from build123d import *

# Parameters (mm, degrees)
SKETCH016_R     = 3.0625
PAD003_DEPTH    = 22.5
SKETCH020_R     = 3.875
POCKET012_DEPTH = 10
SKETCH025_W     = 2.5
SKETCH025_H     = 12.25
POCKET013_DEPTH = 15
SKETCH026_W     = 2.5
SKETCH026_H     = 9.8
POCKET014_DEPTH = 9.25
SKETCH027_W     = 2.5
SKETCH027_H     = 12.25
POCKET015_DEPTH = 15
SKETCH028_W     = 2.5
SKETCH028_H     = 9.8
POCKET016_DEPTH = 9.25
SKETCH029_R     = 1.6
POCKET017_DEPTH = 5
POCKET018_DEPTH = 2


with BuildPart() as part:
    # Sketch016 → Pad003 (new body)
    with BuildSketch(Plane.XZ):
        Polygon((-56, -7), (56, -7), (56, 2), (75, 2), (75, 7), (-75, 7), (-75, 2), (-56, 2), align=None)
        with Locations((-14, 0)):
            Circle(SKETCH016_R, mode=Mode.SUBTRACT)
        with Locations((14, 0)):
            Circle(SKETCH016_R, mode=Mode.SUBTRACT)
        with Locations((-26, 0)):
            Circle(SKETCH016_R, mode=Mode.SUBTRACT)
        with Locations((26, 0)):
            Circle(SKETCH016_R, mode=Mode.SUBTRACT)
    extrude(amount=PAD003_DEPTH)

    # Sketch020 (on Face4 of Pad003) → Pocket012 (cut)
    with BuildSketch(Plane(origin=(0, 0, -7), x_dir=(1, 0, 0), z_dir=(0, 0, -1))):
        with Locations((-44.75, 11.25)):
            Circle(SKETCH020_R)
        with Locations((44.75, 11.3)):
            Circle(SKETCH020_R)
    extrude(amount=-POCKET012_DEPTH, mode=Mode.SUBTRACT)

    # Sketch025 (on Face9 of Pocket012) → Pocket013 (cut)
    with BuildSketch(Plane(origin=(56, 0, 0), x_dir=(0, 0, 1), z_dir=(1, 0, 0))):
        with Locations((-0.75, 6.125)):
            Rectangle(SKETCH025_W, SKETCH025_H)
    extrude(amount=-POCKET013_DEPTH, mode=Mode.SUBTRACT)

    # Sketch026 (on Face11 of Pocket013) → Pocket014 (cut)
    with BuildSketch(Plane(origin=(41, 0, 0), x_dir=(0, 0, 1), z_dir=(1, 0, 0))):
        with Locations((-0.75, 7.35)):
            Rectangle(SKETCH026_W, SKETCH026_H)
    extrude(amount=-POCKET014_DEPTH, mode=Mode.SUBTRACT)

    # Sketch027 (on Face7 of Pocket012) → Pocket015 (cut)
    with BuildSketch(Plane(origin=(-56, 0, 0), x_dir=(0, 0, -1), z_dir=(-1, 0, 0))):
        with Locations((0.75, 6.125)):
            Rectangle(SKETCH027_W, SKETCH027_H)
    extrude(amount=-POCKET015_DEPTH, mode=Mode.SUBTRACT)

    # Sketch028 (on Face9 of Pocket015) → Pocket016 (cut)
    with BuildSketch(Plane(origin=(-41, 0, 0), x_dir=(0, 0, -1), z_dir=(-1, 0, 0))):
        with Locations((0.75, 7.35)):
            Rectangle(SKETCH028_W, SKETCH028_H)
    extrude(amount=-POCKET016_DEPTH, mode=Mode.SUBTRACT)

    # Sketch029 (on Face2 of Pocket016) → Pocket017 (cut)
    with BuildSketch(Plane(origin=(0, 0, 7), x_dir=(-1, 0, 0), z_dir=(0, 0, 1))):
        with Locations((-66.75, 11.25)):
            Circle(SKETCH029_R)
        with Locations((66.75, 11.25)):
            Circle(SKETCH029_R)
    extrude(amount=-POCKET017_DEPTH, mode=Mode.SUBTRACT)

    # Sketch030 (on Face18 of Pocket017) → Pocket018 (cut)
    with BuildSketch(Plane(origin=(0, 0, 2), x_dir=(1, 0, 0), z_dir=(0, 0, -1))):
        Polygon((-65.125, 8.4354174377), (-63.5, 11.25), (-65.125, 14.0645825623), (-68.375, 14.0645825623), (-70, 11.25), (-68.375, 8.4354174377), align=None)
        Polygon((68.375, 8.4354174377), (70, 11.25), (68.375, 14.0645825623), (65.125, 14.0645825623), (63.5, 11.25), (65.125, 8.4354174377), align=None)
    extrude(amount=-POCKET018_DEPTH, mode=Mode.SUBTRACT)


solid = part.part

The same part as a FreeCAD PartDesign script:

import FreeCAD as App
import Part
import Sketcher

V = App.Vector
Q = App.Units.Quantity

doc = App.newDocument("Part")
params = doc.addObject("Spreadsheet::Sheet", "Params")
for row, (alias, value) in enumerate([
    ("sketch1_width", "112 mm"),
    ("sketch1_width2", "19 mm"),
    ("sketch1_height", "9 mm"),
    ("sketch1_height2", "5 mm"),
    ("pad1_length", "22.5 mm"),
    ("sketch2_diameter", "7.75 mm"),
    ("pocket1_length", "10 mm"),
    ("sketch3_height", "2.5 mm"),
    ("sketch3_width", "12.25 mm"),
    ("pocket2_length", "15 mm"),
    ("sketch4_width", "9.8 mm"),
    ("sketch4_height", "2.5 mm"),
    ("pocket3_length", "9.25 mm"),
    ("sketch5_height", "2.5 mm"),
    ("sketch5_width", "12.25 mm"),
    ("pocket4_length", "15 mm"),
    ("sketch6_width", "9.8 mm"),
    ("sketch6_height", "2.5 mm"),
    ("pocket5_length", "9.25 mm"),
    ("sketch7_diameter", "3.2 mm"),
    ("pocket6_length", "5 mm"),
    ("sketch8_width", "3.25 mm"),
    ("pocket7_length", "2 mm"),
], start=1):
    params.set(f"A{row}", alias)
    params.set(f"B{row}", "=" + value)
    params.setAlias(f"B{row}", alias)

body = doc.addObject("PartDesign::Body", "Body")

# Sketch on XZ plane
sketch1 = body.newObject("Sketcher::SketchObject", "Sketch")
sketch1.AttachmentSupport = (doc.getObject("XZ_Plane"), [""])
sketch1.MapMode = "FlatFace"
sketch1.addGeometry([
    Part.LineSegment(V(-56, -7, 0), V(56, -7, 0)),  # 0
    Part.LineSegment(V(56, -7, 0), V(56, 2, 0)),  # 1
    Part.LineSegment(V(56, 2, 0), V(75, 2, 0)),  # 2
    Part.LineSegment(V(75, 2, 0), V(75, 7, 0)),  # 3
    Part.LineSegment(V(75, 7, 0), V(-75, 7, 0)),  # 4
    Part.LineSegment(V(-75, 7, 0), V(-75, 2, 0)),  # 5
    Part.LineSegment(V(-75, 2, 0), V(-56, 2, 0)),  # 6
    Part.LineSegment(V(-56, 2, 0), V(-56, -7, 0)),  # 7
    Part.Circle(V(-26, 0, 0), V(0, 0, 1), 3.1),  # 8
    Part.Circle(V(-14, 0, 0), V(0, 0, 1), 3.1),  # 9
    Part.Circle(V(14, 0, 0), V(0, 0, 1), 3.1),  # 10
    Part.Circle(V(26, 0, 0), V(0, 0, 1), 3.1),  # 11
], False)
sketch1.addConstraint([
    Sketcher.Constraint("Coincident", 0, 2, 1, 1),
    Sketcher.Constraint("Coincident", 1, 2, 2, 1),
    Sketcher.Constraint("Coincident", 2, 2, 3, 1),
    Sketcher.Constraint("Coincident", 3, 2, 4, 1),
    Sketcher.Constraint("Coincident", 4, 2, 5, 1),
    Sketcher.Constraint("Coincident", 5, 2, 6, 1),
    Sketcher.Constraint("Coincident", 6, 2, 7, 1),
    Sketcher.Constraint("Coincident", 7, 2, 0, 1),
    Sketcher.Constraint("Horizontal", 0),
    Sketcher.Constraint("Vertical", 1),
    Sketcher.Constraint("Horizontal", 2),
    Sketcher.Constraint("Vertical", 3),
    Sketcher.Constraint("Horizontal", 4),
    Sketcher.Constraint("Vertical", 5),
    Sketcher.Constraint("Horizontal", 6),
    Sketcher.Constraint("Vertical", 7),
    Sketcher.Constraint("Equal", 8, 9),
    Sketcher.Constraint("Equal", 9, 10),
    Sketcher.Constraint("Equal", 10, 11),
    Sketcher.Constraint("Symmetric", 9, 3, 10, 3, -1, 1),
    Sketcher.Constraint("Symmetric", 8, 3, 11, 3, -1, 1),
    Sketcher.Constraint("Symmetric", 2, 2, 5, 2, -2),
    Sketcher.Constraint("PointOnObject", 8, 3, -1),
    Sketcher.Constraint("PointOnObject", 9, 3, -1),
    Sketcher.Constraint("Equal", 2, 6),
    Sketcher.Constraint("DistanceX", 0, 1, 0, 2, 112.0),
    Sketcher.Constraint("DistanceX", 2, 1, 2, 2, 19.0),
    Sketcher.Constraint("DistanceY", 1, 1, 1, 2, 9.0),
    Sketcher.Constraint("DistanceY", 3, 1, 3, 2, 5.0),
    Sketcher.Constraint("Diameter", 8, 6.125),
    Sketcher.Constraint("DistanceX", 8, 3, -1, 1, 26.0),
    Sketcher.Constraint("DistanceX", 9, 3, -1, 1, 14.0),
    Sketcher.Constraint("DistanceY", 0, 2, -1, 1, 7.0),
])
sketch1.setExpression("Constraints[25]", "Params.sketch1_width")
sketch1.setExpression("Constraints[26]", "Params.sketch1_width2")
sketch1.setExpression("Constraints[27]", "Params.sketch1_height")
sketch1.setExpression("Constraints[28]", "Params.sketch1_height2")
pad1 = body.newObject("PartDesign::Pad", "Pad")
pad1.Profile = sketch1
pad1.setExpression("Length", "Params.pad1_length")

# Sketch on XY plane
sketch2 = body.newObject("Sketcher::SketchObject", "Sketch001")
sketch2.AttachmentSupport = (doc.getObject("XY_Plane"), [""])
sketch2.MapMode = "FlatFace"
sketch2.AttachmentOffset = App.Placement(V(0, 0, -7), App.Rotation())
sketch2.addGeometry([
    Part.Circle(V(-44.8, -11.2, 0), V(0, 0, 1), 3.9),
    Part.Circle(V(44.8, -11.3, 0), V(0, 0, 1), 3.9),
], False)
sketch2.addConstraint([
    Sketcher.Constraint("Equal", 0, 1),
    Sketcher.Constraint("Diameter", 0, 7.75),
    Sketcher.Constraint("DistanceY", 1, 3, -1, 1, 11.3),
    Sketcher.Constraint("DistanceX", 0, 3, 1, 3, 89.5),
    Sketcher.Constraint("DistanceX", 0, 3, -1, 1, 44.75),
    Sketcher.Constraint("DistanceY", 0, 3, -1, 1, 11.25),
])
sketch2.setExpression("Constraints[1]", "Params.sketch2_diameter")
pocket1 = body.newObject("PartDesign::Pocket", "Pocket")
pocket1.Profile = sketch2
pocket1.setExpression("Length", "Params.pocket1_length")
pocket1.Reversed = True

# Sketch on YZ plane
sketch3 = body.newObject("Sketcher::SketchObject", "Sketch002")
sketch3.AttachmentSupport = (doc.getObject("YZ_Plane"), [""])
sketch3.MapMode = "FlatFace"
sketch3.AttachmentOffset = App.Placement(V(0, 0, 56), App.Rotation())
sketch3.addGeometry([
    Part.LineSegment(V(-12.2, -2, 0), V(0, -2, 0)),
    Part.LineSegment(V(0, -2, 0), V(0, 0.5, 0)),
    Part.LineSegment(V(0, 0.5, 0), V(-12.2, 0.5, 0)),
    Part.LineSegment(V(-12.2, 0.5, 0), V(-12.2, -2, 0)),
], False)
sketch3.addConstraint([
    Sketcher.Constraint("Coincident", 0, 2, 1, 1),
    Sketcher.Constraint("Coincident", 1, 2, 2, 1),
    Sketcher.Constraint("Coincident", 2, 2, 3, 1),
    Sketcher.Constraint("Coincident", 3, 2, 0, 1),
    Sketcher.Constraint("Horizontal", 0),
    Sketcher.Constraint("Vertical", 1),
    Sketcher.Constraint("Horizontal", 2),
    Sketcher.Constraint("Vertical", 3),
    Sketcher.Constraint("PointOnObject", 0, 2, -2),
    Sketcher.Constraint("DistanceY", 1, 1, 1, 2, 2.5),
    Sketcher.Constraint("DistanceY", 0, 2, -1, 1, 2.0),
    Sketcher.Constraint("DistanceX", 0, 1, 0, 2, 12.25),
])
sketch3.setExpression("Constraints[9]", "Params.sketch3_height")
sketch3.setExpression("Constraints[11]", "Params.sketch3_width")
pocket2 = body.newObject("PartDesign::Pocket", "Pocket001")
pocket2.Profile = sketch3
pocket2.setExpression("Length", "Params.pocket2_length")

# Sketch on YZ plane
sketch4 = body.newObject("Sketcher::SketchObject", "Sketch003")
sketch4.AttachmentSupport = (doc.getObject("YZ_Plane"), [""])
sketch4.MapMode = "FlatFace"
sketch4.AttachmentOffset = App.Placement(V(0, 0, 41), App.Rotation())
sketch4.addGeometry([
    Part.LineSegment(V(-12.2, -2, 0), V(-2.5, -2, 0)),
    Part.LineSegment(V(-2.5, -2, 0), V(-2.5, 0.5, 0)),
    Part.LineSegment(V(-2.5, 0.5, 0), V(-12.2, 0.5, 0)),
    Part.LineSegment(V(-12.2, 0.5, 0), V(-12.2, -2, 0)),
], False)
sketch4.addConstraint([
    Sketcher.Constraint("Coincident", 0, 2, 1, 1),
    Sketcher.Constraint("Coincident", 1, 2, 2, 1),
    Sketcher.Constraint("Coincident", 2, 2, 3, 1),
    Sketcher.Constraint("Coincident", 3, 2, 0, 1),
    Sketcher.Constraint("Horizontal", 0),
    Sketcher.Constraint("Vertical", 1),
    Sketcher.Constraint("Horizontal", 2),
    Sketcher.Constraint("Vertical", 3),
    Sketcher.Constraint("DistanceX", 0, 1, 0, 2, 9.8),
    Sketcher.Constraint("DistanceY", 1, 1, 1, 2, 2.5),
    Sketcher.Constraint("DistanceY", 0, 2, -1, 1, 2.0),
    Sketcher.Constraint("DistanceX", 0, 2, -1, 1, 2.45),
])
sketch4.setExpression("Constraints[8]", "Params.sketch4_width")
sketch4.setExpression("Constraints[9]", "Params.sketch4_height")
pocket3 = body.newObject("PartDesign::Pocket", "Pocket002")
pocket3.Profile = sketch4
pocket3.setExpression("Length", "Params.pocket3_length")

# Sketch on YZ plane
sketch5 = body.newObject("Sketcher::SketchObject", "Sketch004")
sketch5.AttachmentSupport = (doc.getObject("YZ_Plane"), [""])
sketch5.MapMode = "FlatFace"
sketch5.AttachmentOffset = App.Placement(V(0, 0, -56), App.Rotation())
sketch5.addGeometry([
    Part.LineSegment(V(-12.2, 0.5, 0), V(0, 0.5, 0)),
    Part.LineSegment(V(0, 0.5, 0), V(0, -2, 0)),
    Part.LineSegment(V(0, -2, 0), V(-12.2, -2, 0)),
    Part.LineSegment(V(-12.2, -2, 0), V(-12.2, 0.5, 0)),
], False)
sketch5.addConstraint([
    Sketcher.Constraint("Coincident", 0, 2, 1, 1),
    Sketcher.Constraint("Coincident", 1, 2, 2, 1),
    Sketcher.Constraint("Coincident", 2, 2, 3, 1),
    Sketcher.Constraint("Coincident", 3, 2, 0, 1),
    Sketcher.Constraint("Horizontal", 0),
    Sketcher.Constraint("Vertical", 1),
    Sketcher.Constraint("Horizontal", 2),
    Sketcher.Constraint("Vertical", 3),
    Sketcher.Constraint("PointOnObject", 0, 2, -2),
    Sketcher.Constraint("DistanceY", 1, 2, 1, 1, 2.5),
    Sketcher.Constraint("DistanceY", 1, 2, -1, 1, 2.0),
    Sketcher.Constraint("DistanceX", 0, 1, 0, 2, 12.25),
])
sketch5.setExpression("Constraints[9]", "Params.sketch5_height")
sketch5.setExpression("Constraints[11]", "Params.sketch5_width")
pocket4 = body.newObject("PartDesign::Pocket", "Pocket003")
pocket4.Profile = sketch5
pocket4.setExpression("Length", "Params.pocket4_length")
pocket4.Reversed = True

# Sketch on YZ plane
sketch6 = body.newObject("Sketcher::SketchObject", "Sketch005")
sketch6.AttachmentSupport = (doc.getObject("YZ_Plane"), [""])
sketch6.MapMode = "FlatFace"
sketch6.AttachmentOffset = App.Placement(V(0, 0, -41), App.Rotation())
sketch6.addGeometry([
    Part.LineSegment(V(-12.2, 0.5, 0), V(-2.5, 0.5, 0)),
    Part.LineSegment(V(-2.5, 0.5, 0), V(-2.5, -2, 0)),
    Part.LineSegment(V(-2.5, -2, 0), V(-12.2, -2, 0)),
    Part.LineSegment(V(-12.2, -2, 0), V(-12.2, 0.5, 0)),
], False)
sketch6.addConstraint([
    Sketcher.Constraint("Coincident", 0, 2, 1, 1),
    Sketcher.Constraint("Coincident", 1, 2, 2, 1),
    Sketcher.Constraint("Coincident", 2, 2, 3, 1),
    Sketcher.Constraint("Coincident", 3, 2, 0, 1),
    Sketcher.Constraint("Horizontal", 0),
    Sketcher.Constraint("Vertical", 1),
    Sketcher.Constraint("Horizontal", 2),
    Sketcher.Constraint("Vertical", 3),
    Sketcher.Constraint("DistanceX", 0, 1, 0, 2, 9.8),
    Sketcher.Constraint("DistanceY", 1, 2, 1, 1, 2.5),
    Sketcher.Constraint("DistanceY", 1, 2, -1, 1, 2.0),
    Sketcher.Constraint("DistanceX", 0, 2, -1, 1, 2.45),
])
sketch6.setExpression("Constraints[8]", "Params.sketch6_width")
sketch6.setExpression("Constraints[9]", "Params.sketch6_height")
pocket5 = body.newObject("PartDesign::Pocket", "Pocket004")
pocket5.Profile = sketch6
pocket5.setExpression("Length", "Params.pocket5_length")
pocket5.Reversed = True

# Sketch on XY plane
sketch7 = body.newObject("Sketcher::SketchObject", "Sketch006")
sketch7.AttachmentSupport = (doc.getObject("XY_Plane"), [""])
sketch7.MapMode = "FlatFace"
sketch7.AttachmentOffset = App.Placement(V(0, 0, 7), App.Rotation())
sketch7.addGeometry([
    Part.Circle(V(66.8, -11.2, 0), V(0, 0, 1), 1.6),
    Part.Circle(V(-66.8, -11.2, 0), V(0, 0, 1), 1.6),
], False)
sketch7.addConstraint([
    Sketcher.Constraint("Equal", 0, 1),
    Sketcher.Constraint("Symmetric", 0, 3, 1, 3, -2),
    Sketcher.Constraint("Diameter", 0, 3.2),
    Sketcher.Constraint("DistanceX", 1, 3, 0, 3, 133.5),
    Sketcher.Constraint("DistanceY", 0, 3, -1, 1, 11.25),
])
sketch7.setExpression("Constraints[2]", "Params.sketch7_diameter")
pocket6 = body.newObject("PartDesign::Pocket", "Pocket005")
pocket6.Profile = sketch7
pocket6.setExpression("Length", "Params.pocket6_length")

# Sketch on XY plane
sketch8 = body.newObject("Sketcher::SketchObject", "Sketch007")
sketch8.AttachmentSupport = (doc.getObject("XY_Plane"), [""])
sketch8.MapMode = "FlatFace"
sketch8.AttachmentOffset = App.Placement(V(0, 0, 2), App.Rotation())
sketch8.addGeometry([
    Part.LineSegment(V(-65.1, -8.4, 0), V(-63.5, -11.2, 0)),  # 0
    Part.LineSegment(V(-63.5, -11.2, 0), V(-65.1, -14.1, 0)),  # 1
    Part.LineSegment(V(-65.1, -14.1, 0), V(-68.4, -14.1, 0)),  # 2
    Part.LineSegment(V(-68.4, -14.1, 0), V(-70, -11.2, 0)),  # 3
    Part.LineSegment(V(-70, -11.2, 0), V(-68.4, -8.4, 0)),  # 4
    Part.LineSegment(V(-68.4, -8.4, 0), V(-65.1, -8.4, 0)),  # 5
    Part.LineSegment(V(68.4, -8.4, 0), V(70, -11.2, 0)),  # 6
    Part.LineSegment(V(70, -11.2, 0), V(68.4, -14.1, 0)),  # 7
    Part.LineSegment(V(68.4, -14.1, 0), V(65.1, -14.1, 0)),  # 8
    Part.LineSegment(V(65.1, -14.1, 0), V(63.5, -11.2, 0)),  # 9
    Part.LineSegment(V(63.5, -11.2, 0), V(65.1, -8.4, 0)),  # 10
    Part.LineSegment(V(65.1, -8.4, 0), V(68.4, -8.4, 0)),  # 11
], False)
sketch8.addConstraint([
    Sketcher.Constraint("Coincident", 0, 2, 1, 1),
    Sketcher.Constraint("Coincident", 1, 2, 2, 1),
    Sketcher.Constraint("Coincident", 2, 2, 3, 1),
    Sketcher.Constraint("Coincident", 3, 2, 4, 1),
    Sketcher.Constraint("Coincident", 4, 2, 5, 1),
    Sketcher.Constraint("Coincident", 5, 2, 0, 1),
    Sketcher.Constraint("Coincident", 6, 2, 7, 1),
    Sketcher.Constraint("Coincident", 7, 2, 8, 1),
    Sketcher.Constraint("Coincident", 8, 2, 9, 1),
    Sketcher.Constraint("Coincident", 9, 2, 10, 1),
    Sketcher.Constraint("Coincident", 10, 2, 11, 1),
    Sketcher.Constraint("Coincident", 11, 2, 6, 1),
    Sketcher.Constraint("Horizontal", 2),
    Sketcher.Constraint("Horizontal", 5),
    Sketcher.Constraint("Horizontal", 8),
    Sketcher.Constraint("Horizontal", 11),
    Sketcher.Constraint("Symmetric", 3, 2, 6, 2, -2),
    Sketcher.Constraint("Symmetric", 2, 2, 7, 2, -2),
    Sketcher.Constraint("Symmetric", 0, 2, 9, 2, -2),
    Sketcher.Constraint("Symmetric", 5, 2, 10, 2, -2),
    Sketcher.Constraint("Parallel", 0, 3),
    Sketcher.Constraint("Parallel", 1, 4),
    Sketcher.Constraint("Parallel", 3, 6),
    Sketcher.Constraint("Parallel", 4, 7),
    Sketcher.Constraint("Parallel", 6, 9),
    Sketcher.Constraint("Horizontal", 0, 2, 3, 2),
    Sketcher.Constraint("Vertical", 2, 2, 4, 2),
    Sketcher.Constraint("Angle", 0, Q("-60 deg")),
    Sketcher.Constraint("DistanceX", 3, 2, -1, 1, 70.0),
    Sketcher.Constraint("DistanceX", 0, 2, 9, 2, 127.0),
    Sketcher.Constraint("DistanceX", 2, 2, 2, 1, 3.25),
    Sketcher.Constraint("DistanceY", 0, 2, -1, 1, 11.25),
])
sketch8.setExpression("Constraints[30]", "Params.sketch8_width")
pocket7 = body.newObject("PartDesign::Pocket", "Pocket006")
pocket7.Profile = sketch8
pocket7.setExpression("Length", "Params.pocket7_length")
pocket7.Reversed = True

doc.recompute()
